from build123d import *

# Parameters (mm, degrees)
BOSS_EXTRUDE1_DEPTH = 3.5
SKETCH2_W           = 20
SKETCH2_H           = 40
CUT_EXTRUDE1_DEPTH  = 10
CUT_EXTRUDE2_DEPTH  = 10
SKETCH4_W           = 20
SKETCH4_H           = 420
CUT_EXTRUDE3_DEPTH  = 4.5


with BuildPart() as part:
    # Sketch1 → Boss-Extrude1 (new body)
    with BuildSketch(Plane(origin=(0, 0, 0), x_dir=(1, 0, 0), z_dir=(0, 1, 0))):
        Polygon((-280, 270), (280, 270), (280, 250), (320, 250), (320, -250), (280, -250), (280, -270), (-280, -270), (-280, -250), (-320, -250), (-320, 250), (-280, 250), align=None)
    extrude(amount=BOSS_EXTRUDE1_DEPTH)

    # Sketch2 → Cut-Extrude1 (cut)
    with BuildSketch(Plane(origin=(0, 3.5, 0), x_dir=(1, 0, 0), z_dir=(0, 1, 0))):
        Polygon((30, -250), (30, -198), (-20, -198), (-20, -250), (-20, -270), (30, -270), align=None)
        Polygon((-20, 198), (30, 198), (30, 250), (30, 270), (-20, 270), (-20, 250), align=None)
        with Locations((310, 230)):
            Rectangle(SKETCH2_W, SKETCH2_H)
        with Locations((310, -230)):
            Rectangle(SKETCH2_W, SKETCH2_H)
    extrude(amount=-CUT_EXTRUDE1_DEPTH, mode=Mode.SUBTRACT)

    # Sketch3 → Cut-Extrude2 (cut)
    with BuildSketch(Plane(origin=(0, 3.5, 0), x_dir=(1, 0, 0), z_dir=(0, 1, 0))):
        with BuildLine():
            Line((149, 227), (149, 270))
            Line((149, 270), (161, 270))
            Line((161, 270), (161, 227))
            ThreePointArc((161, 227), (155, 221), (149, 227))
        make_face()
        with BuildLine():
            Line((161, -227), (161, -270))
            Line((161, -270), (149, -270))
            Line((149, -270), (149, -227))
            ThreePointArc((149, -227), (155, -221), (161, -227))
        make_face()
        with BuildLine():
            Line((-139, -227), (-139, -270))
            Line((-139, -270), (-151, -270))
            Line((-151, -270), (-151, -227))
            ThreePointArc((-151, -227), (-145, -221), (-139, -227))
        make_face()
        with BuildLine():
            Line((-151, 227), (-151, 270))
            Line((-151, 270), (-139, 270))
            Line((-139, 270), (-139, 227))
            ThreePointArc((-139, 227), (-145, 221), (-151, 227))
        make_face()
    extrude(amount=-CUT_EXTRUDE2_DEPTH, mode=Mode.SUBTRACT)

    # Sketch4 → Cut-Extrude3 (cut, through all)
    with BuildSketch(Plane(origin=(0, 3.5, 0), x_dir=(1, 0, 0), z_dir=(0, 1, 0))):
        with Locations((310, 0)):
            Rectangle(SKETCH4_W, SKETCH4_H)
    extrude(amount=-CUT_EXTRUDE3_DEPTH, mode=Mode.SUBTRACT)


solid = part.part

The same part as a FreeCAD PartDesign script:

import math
import FreeCAD as App
import Part
import Sketcher
Q = App.Units.Quantity

doc = App.newDocument("Part")
params = doc.addObject("Spreadsheet::Sheet", "Params")
for row, (alias, value) in enumerate([
    ("sketch1_width", "560 mm"),
    ("sketch1_width2", "40 mm"),
    ("sketch1_height", "20 mm"),
    ("sketch1_height2", "500 mm"),
    ("pad1_length", "3.5 mm"),
    ("sketch2_width", "50 mm"),
    ("sketch2_width2", "20 mm"),
    ("sketch2_height", "72 mm"),
    ("sketch2_height2", "40 mm"),
    ("pocket1_length", "10 mm"),
    ("sketch3_radius", "6 mm"),
    ("sketch3_height", "43 mm"),
    ("pocket2_length", "10 mm"),
    ("sketch4_width", "20 mm"),
    ("sketch4_height", "420 mm"),
], start=1):
    params.set(f"A{row}", alias)
    params.set(f"B{row}", "=" + value)
    params.setAlias(f"B{row}", alias)

body = doc.addObject("PartDesign::Body", "Body")

# Sketch on XZ plane
sketch1 = doc.addObject("Sketcher::SketchObject", "Sketch")
body.addObject(sketch1)
sketch1.AttachmentSupport = (doc.XZ_Plane, [""])
sketch1.MapMode = "FlatFace"
sketch1.addGeometry([
    Part.LineSegment(App.Vector(280, -270, 0), App.Vector(-280, -270, 0)),  # 0
    Part.LineSegment(App.Vector(-280, -270, 0), App.Vector(-280, -250, 0)),  # 1
    Part.LineSegment(App.Vector(-280, -250, 0), App.Vector(-320, -250, 0)),  # 2
    Part.LineSegment(App.Vector(-320, -250, 0), App.Vector(-320, 250, 0)),  # 3
    Part.LineSegment(App.Vector(-320, 250, 0), App.Vector(-280, 250, 0)),  # 4
    Part.LineSegment(App.Vector(-280, 250, 0), App.Vector(-280, 270, 0)),  # 5
    Part.LineSegment(App.Vector(-280, 270, 0), App.Vector(280, 270, 0)),  # 6
    Part.LineSegment(App.Vector(280, 270, 0), App.Vector(280, 250, 0)),  # 7
    Part.LineSegment(App.Vector(280, 250, 0), App.Vector(320, 250, 0)),  # 8
    Part.LineSegment(App.Vector(320, 250, 0), App.Vector(320, -250, 0)),  # 9
    Part.LineSegment(App.Vector(320, -250, 0), App.Vector(280, -250, 0)),  # 10
    Part.LineSegment(App.Vector(280, -250, 0), App.Vector(280, -270, 0)),  # 11
], False)
sketch1.addConstraint([
    Sketcher.Constraint("Coincident", 0, 2, 1, 1),
    Sketcher.Constraint("Coincident", 1, 2, 2, 1),
    Sketcher.Constraint("Coincident", 2, 2, 3, 1),
    Sketcher.Constraint("Coincident", 3, 2, 4, 1),
    Sketcher.Constraint("Coincident", 4, 2, 5, 1),
    Sketcher.Constraint("Coincident", 5, 2, 6, 1),
    Sketcher.Constraint("Coincident", 6, 2, 7, 1),
    Sketcher.Constraint("Coincident", 7, 2, 8, 1),
    Sketcher.Constraint("Coincident", 8, 2, 9, 1),
    Sketcher.Constraint("Coincident", 9, 2, 10, 1),
    Sketcher.Constraint("Coincident", 10, 2, 11, 1),
    Sketcher.Constraint("Coincident", 11, 2, 0, 1),
    Sketcher.Constraint("Horizontal", 0),
    Sketcher.Constraint("Vertical", 1),
    Sketcher.Constraint("Horizontal", 2),
    Sketcher.Constraint("Vertical", 3),
    Sketcher.Constraint("Horizontal", 4),
    Sketcher.Constraint("Vertical", 5),
    Sketcher.Constraint("Horizontal", 6),
    Sketcher.Constraint("Vertical", 7),
    Sketcher.Constraint("Horizontal", 8),
    Sketcher.Constraint("Vertical", 9),
    Sketcher.Constraint("Horizontal", 10),
    Sketcher.Constraint("Vertical", 11),
    Sketcher.Constraint("Symmetric", 0, 2, 6, 2, -1, 1),
    Sketcher.Constraint("Symmetric", 2, 2, 8, 2, -1, 1),
    Sketcher.Constraint("Symmetric", 4, 2, 10, 2, -1, 1),
    Sketcher.Constraint("Symmetric", 4, 2, 7, 2, -2),
    Sketcher.Constraint("DistanceX", 0, 2, 0, 1, Q("560 mm")),
    Sketcher.Constraint("DistanceX", 2, 2, 2, 1, Q("40 mm")),
    Sketcher.Constraint("DistanceY", 1, 1, 1, 2, Q("20 mm")),
    Sketcher.Constraint("DistanceY", 3, 1, 3, 2, Q("500 mm")),
])
sketch1.setExpression("Constraints[28]", "Params.sketch1_width")
sketch1.setExpression("Constraints[29]", "Params.sketch1_width2")
sketch1.setExpression("Constraints[30]", "Params.sketch1_height")
sketch1.setExpression("Constraints[31]", "Params.sketch1_height2")
pad1 = doc.addObject("PartDesign::Pad", "Pad")
body.addObject(pad1)
pad1.Profile = sketch1
pad1.setExpression("Length", "Params.pad1_length")
pad1.Reversed = True

# Sketch on XZ plane
sketch2 = doc.addObject("Sketcher::SketchObject", "Sketch001")
body.addObject(sketch2)
sketch2.AttachmentSupport = (doc.XZ_Plane, [""])
sketch2.MapMode = "FlatFace"
sketch2.AttachmentOffset = App.Placement(App.Vector(0, 0, -3.5), App.Rotation())
sketch2.addGeometry([
    Part.LineSegment(App.Vector(30, 198, 0), App.Vector(-20, 198, 0)),  # 0
    Part.LineSegment(App.Vector(-20, 198, 0), App.Vector(-20, 270, 0)),  # 1
    Part.LineSegment(App.Vector(-20, 270, 0), App.Vector(30, 270, 0)),  # 2
    Part.LineSegment(App.Vector(30, 270, 0), App.Vector(30, 198, 0)),  # 3
    Part.LineSegment(App.Vector(-20, -198, 0), App.Vector(30, -198, 0)),  # 4
    Part.LineSegment(App.Vector(30, -198, 0), App.Vector(30, -270, 0)),  # 5
    Part.LineSegment(App.Vector(30, -270, 0), App.Vector(-20, -270, 0)),  # 6
    Part.LineSegment(App.Vector(-20, -270, 0), App.Vector(-20, -198, 0)),  # 7
    Part.LineSegment(App.Vector(300, -250, 0), App.Vector(300, -210, 0)),  # 8
    Part.LineSegment(App.Vector(300, -210, 0), App.Vector(320, -210, 0)),  # 9
    Part.LineSegment(App.Vector(320, -210, 0), App.Vector(320, -250, 0)),  # 10
    Part.LineSegment(App.Vector(320, -250, 0), App.Vector(300, -250, 0)),  # 11
    Part.LineSegment(App.Vector(300, 210, 0), App.Vector(300, 250, 0)),  # 12
    Part.LineSegment(App.Vector(300, 250, 0), App.Vector(320, 250, 0)),  # 13
    Part.LineSegment(App.Vector(320, 250, 0), App.Vector(320, 210, 0)),  # 14
    Part.LineSegment(App.Vector(320, 210, 0), App.Vector(300, 210, 0)),  # 15
], False)
sketch2.addConstraint([
    Sketcher.Constraint("Coincident", 0, 2, 1, 1),
    Sketcher.Constraint("Coincident", 1, 2, 2, 1),
    Sketcher.Constraint("Coincident", 2, 2, 3, 1),
    Sketcher.Constraint("Coincident", 3, 2, 0, 1),
    Sketcher.Constraint("Coincident", 4, 2, 5, 1),
    Sketcher.Constraint("Coincident", 5, 2, 6, 1),
    Sketcher.Constraint("Coincident", 6, 2, 7, 1),
    Sketcher.Constraint("Coincident", 7, 2, 4, 1),
    Sketcher.Constraint("Coincident", 8, 2, 9, 1),
    Sketcher.Constraint("Coincident", 9, 2, 10, 1),
    Sketcher.Constraint("Coincident", 10, 2, 11, 1),
    Sketcher.Constraint("Coincident", 11, 2, 8, 1),
    Sketcher.Constraint("Coincident", 12, 2, 13, 1),
    Sketcher.Constraint("Coincident", 13, 2, 14, 1),
    Sketcher.Constraint("Coincident", 14, 2, 15, 1),
    Sketcher.Constraint("Coincident", 15, 2, 12, 1),
    Sketcher.Constraint("Horizontal", 0),
    Sketcher.Constraint("Vertical", 1),
    Sketcher.Constraint("Horizontal", 2),
    Sketcher.Constraint("Vertical", 3),
    Sketcher.Constraint("Horizontal", 4),
    Sketcher.Constraint("Vertical", 5),
    Sketcher.Constraint("Horizontal", 6),
    Sketcher.Constraint("Vertical", 7),
    Sketcher.Constraint("Vertical", 8),
    Sketcher.Constraint("Horizontal", 9),
    Sketcher.Constraint("Vertical", 10),
    Sketcher.Constraint("Horizontal", 11),
    Sketcher.Constraint("Vertical", 12),
    Sketcher.Constraint("Horizontal", 13),
    Sketcher.Constraint("Vertical", 14),
    Sketcher.Constraint("Horizontal", 15),
    Sketcher.Constraint("Symmetric", 3, 2, 4, 2, -1),
    Sketcher.Constraint("Symmetric", 1, 2, 6, 2, -1),
    Sketcher.Constraint("Symmetric", 11, 2, 12, 2, -1),
    Sketcher.Constraint("Symmetric", 9, 2, 14, 2, -1),
    Sketcher.Constraint("DistanceX", 0, 2, 0, 1, Q("50 mm")),
    Sketcher.Constraint("DistanceX", 9, 1, 9, 2, Q("20 mm")),
    Sketcher.Constraint("DistanceY", 1, 1, 1, 2, Q("72 mm")),
    Sketcher.Constraint("DistanceY", 8, 1, 8, 2, Q("40 mm")),
    Sketcher.Constraint("DistanceX", 0, 2, -1, 1, Q("20 mm")),
    Sketcher.Constraint("DistanceY", -1, 1, 0, 2, Q("198 mm")),
    Sketcher.Constraint("DistanceX", -1, 1, 8, 2, Q("300 mm")),
    Sketcher.Constraint("DistanceY", 8, 2, -1, 1, Q("210 mm")),
])
sketch2.setExpression("Constraints[36]", "Params.sketch2_width")
sketch2.setExpression("Constraints[37]", "Params.sketch2_width2")
sketch2.setExpression("Constraints[38]", "Params.sketch2_height")
sketch2.setExpression("Constraints[39]", "Params.sketch2_height2")
pocket1 = doc.addObject("PartDesign::Pocket", "Pocket")
body.addObject(pocket1)
pocket1.Profile = sketch2
pocket1.setExpression("Length", "Params.pocket1_length")
pocket1.Reversed = True

# Sketch on XZ plane
sketch3 = doc.addObject("Sketcher::SketchObject", "Sketch002")
body.addObject(sketch3)
sketch3.AttachmentSupport = (doc.XZ_Plane, [""])
sketch3.MapMode = "FlatFace"
sketch3.AttachmentOffset = App.Placement(App.Vector(0, 0, -3.5), App.Rotation())
sketch3.addGeometry([
    Part.LineSegment(App.Vector(149, -270, 0), App.Vector(149, -227, 0)),  # 0
    Part.ArcOfCircle(Part.Circle(App.Vector(155, -227, 0), App.Vector(0, 0, 1), 6), math.radians(0), math.radians(180)),  # 1
    Part.LineSegment(App.Vector(161, -227, 0), App.Vector(161, -270, 0)),  # 2
    Part.LineSegment(App.Vector(161, -270, 0), App.Vector(149, -270, 0)),  # 3
    Part.LineSegment(App.Vector(161, 270, 0), App.Vector(161, 227, 0)),  # 4
    Part.ArcOfCircle(Part.Circle(App.Vector(155, 227, 0), App.Vector(0, 0, 1), 6), math.radians(180), math.radians(360)),  # 5
    Part.LineSegment(App.Vector(149, 227, 0), App.Vector(149, 270, 0)),  # 6
    Part.LineSegment(App.Vector(149, 270, 0), App.Vector(161, 270, 0)),  # 7
    Part.LineSegment(App.Vector(-139, 270, 0), App.Vector(-139, 227, 0)),  # 8
    Part.ArcOfCircle(Part.Circle(App.Vector(-145, 227, 0), App.Vector(0, 0, 1), 6), math.radians(180), math.radians(360)),  # 9
    Part.LineSegment(App.Vector(-151, 227, 0), App.Vector(-151, 270, 0)),  # 10
    Part.LineSegment(App.Vector(-151, 270, 0), App.Vector(-139, 270, 0)),  # 11
    Part.LineSegment(App.Vector(-151, -270, 0), App.Vector(-151, -227, 0)),  # 12
    Part.ArcOfCircle(Part.Circle(App.Vector(-145, -227, 0), App.Vector(0, 0, 1), 6), math.radians(0), math.radians(180)),  # 13
    Part.LineSegment(App.Vector(-139, -227, 0), App.Vector(-139, -270, 0)),  # 14
    Part.LineSegment(App.Vector(-139, -270, 0), App.Vector(-151, -270, 0)),  # 15
], False)
sketch3.addConstraint([
    Sketcher.Constraint("Tangent", 0, 2, 1, 2),
    Sketcher.Constraint("Tangent", 1, 1, 2, 1),
    Sketcher.Constraint("Coincident", 2, 2, 3, 1),
    Sketcher.Constraint("Coincident", 3, 2, 0, 1),
    Sketcher.Constraint("Tangent", 4, 2, 5, 2),
    Sketcher.Constraint("Tangent", 5, 1, 6, 1),
    Sketcher.Constraint("Coincident", 6, 2, 7, 1),
    Sketcher.Constraint("Coincident", 7, 2, 4, 1),
    Sketcher.Constraint("Tangent", 8, 2, 9, 2),
    Sketcher.Constraint("Tangent", 9, 1, 10, 1),
    Sketcher.Constraint("Coincident", 10, 2, 11, 1),
    Sketcher.Constraint("Coincident", 11, 2, 8, 1),
    Sketcher.Constraint("Tangent", 12, 2, 13, 2),
    Sketcher.Constraint("Tangent", 13, 1, 14, 1),
    Sketcher.Constraint("Coincident", 14, 2, 15, 1),
    Sketcher.Constraint("Coincident", 15, 2, 12, 1),
    Sketcher.Constraint("Vertical", 0),
    Sketcher.Constraint("Vertical", 2),
    Sketcher.Constraint("Horizontal", 3),
    Sketcher.Constraint("Vertical", 4),
    Sketcher.Constraint("Vertical", 6),
    Sketcher.Constraint("Horizontal", 7),
    Sketcher.Constraint("Vertical", 8),
    Sketcher.Constraint("Vertical", 10),
    Sketcher.Constraint("Horizontal", 11),
    Sketcher.Constraint("Vertical", 12),
    Sketcher.Constraint("Vertical", 14),
    Sketcher.Constraint("Horizontal", 15),
    Sketcher.Constraint("Equal", 1, 5),
    Sketcher.Constraint("Equal", 5, 9),
    Sketcher.Constraint("Equal", 9, 13),
    Sketcher.Constraint("Symmetric", 1, 3, 5, 3, -1),
    Sketcher.Constraint("Symmetric", 9, 3, 13, 3, -1),
    Sketcher.Constraint("Horizontal", 5, 3, 9, 3),
    Sketcher.Constraint("Horizontal", 7, 2, 10, 2),
    Sketcher.Constraint("Horizontal", 3, 2, 14, 2),
    Sketcher.Constraint("Equal", 2, 4),
    Sketcher.Constraint("Radius", 1, Q("6 mm")),
    Sketcher.Constraint("DistanceY", 0, 1, 0, 2, Q("43 mm")),
    Sketcher.Constraint("DistanceX", -1, 1, 1, 3, Q("155 mm")),
    Sketcher.Constraint("DistanceY", 1, 3, -1, 1, Q("227 mm")),
    Sketcher.Constraint("DistanceX", 9, 3, -1, 1, Q("145 mm")),
])
sketch3.setExpression("Constraints[37]", "Params.sketch3_radius")
sketch3.setExpression("Constraints[38]", "Params.sketch3_height")
pocket2 = doc.addObject("PartDesign::Pocket", "Pocket001")
body.addObject(pocket2)
pocket2.Profile = sketch3
pocket2.setExpression("Length", "Params.pocket2_length")
pocket2.Reversed = True

# Sketch on XZ plane
sketch4 = doc.addObject("Sketcher::SketchObject", "Sketch003")
body.addObject(sketch4)
sketch4.AttachmentSupport = (doc.XZ_Plane, [""])
sketch4.MapMode = "FlatFace"
sketch4.AttachmentOffset = App.Placement(App.Vector(0, 0, -3.5), App.Rotation())
sketch4.addGeometry([
    Part.LineSegment(App.Vector(300, -210, 0), App.Vector(300, 210, 0)),
    Part.LineSegment(App.Vector(300, 210, 0), App.Vector(320, 210, 0)),
    Part.LineSegment(App.Vector(320, 210, 0), App.Vector(320, -210, 0)),
    Part.LineSegment(App.Vector(320, -210, 0), App.Vector(300, -210, 0)),
], False)
sketch4.addConstraint([
    Sketcher.Constraint("Coincident", 0, 2, 1, 1),
    Sketcher.Constraint("Coincident", 1, 2, 2, 1),
    Sketcher.Constraint("Coincident", 2, 2, 3, 1),
    Sketcher.Constraint("Coincident", 3, 2, 0, 1),
    Sketcher.Constraint("Vertical", 0),
    Sketcher.Constraint("Horizontal", 1),
    Sketcher.Constraint("Vertical", 2),
    Sketcher.Constraint("Horizontal", 3),
    Sketcher.Constraint("DistanceX", 1, 1, 1, 2, Q("20 mm")),
    Sketcher.Constraint("DistanceY", 0, 1, 0, 2, Q("420 mm")),
    Sketcher.Constraint("DistanceX", -1, 1, 0, 2, Q("300 mm")),
    Sketcher.Constraint("DistanceY", -1, 1, 0, 2, Q("210 mm")),
])
sketch4.setExpression("Constraints[8]", "Params.sketch4_width")
sketch4.setExpression("Constraints[9]", "Params.sketch4_height")
pocket3 = doc.addObject("PartDesign::Pocket", "Pocket002")
body.addObject(pocket3)
pocket3.Profile = sketch4
pocket3.Type = "ThroughAll"
pocket3.Reversed = True

doc.recompute()
